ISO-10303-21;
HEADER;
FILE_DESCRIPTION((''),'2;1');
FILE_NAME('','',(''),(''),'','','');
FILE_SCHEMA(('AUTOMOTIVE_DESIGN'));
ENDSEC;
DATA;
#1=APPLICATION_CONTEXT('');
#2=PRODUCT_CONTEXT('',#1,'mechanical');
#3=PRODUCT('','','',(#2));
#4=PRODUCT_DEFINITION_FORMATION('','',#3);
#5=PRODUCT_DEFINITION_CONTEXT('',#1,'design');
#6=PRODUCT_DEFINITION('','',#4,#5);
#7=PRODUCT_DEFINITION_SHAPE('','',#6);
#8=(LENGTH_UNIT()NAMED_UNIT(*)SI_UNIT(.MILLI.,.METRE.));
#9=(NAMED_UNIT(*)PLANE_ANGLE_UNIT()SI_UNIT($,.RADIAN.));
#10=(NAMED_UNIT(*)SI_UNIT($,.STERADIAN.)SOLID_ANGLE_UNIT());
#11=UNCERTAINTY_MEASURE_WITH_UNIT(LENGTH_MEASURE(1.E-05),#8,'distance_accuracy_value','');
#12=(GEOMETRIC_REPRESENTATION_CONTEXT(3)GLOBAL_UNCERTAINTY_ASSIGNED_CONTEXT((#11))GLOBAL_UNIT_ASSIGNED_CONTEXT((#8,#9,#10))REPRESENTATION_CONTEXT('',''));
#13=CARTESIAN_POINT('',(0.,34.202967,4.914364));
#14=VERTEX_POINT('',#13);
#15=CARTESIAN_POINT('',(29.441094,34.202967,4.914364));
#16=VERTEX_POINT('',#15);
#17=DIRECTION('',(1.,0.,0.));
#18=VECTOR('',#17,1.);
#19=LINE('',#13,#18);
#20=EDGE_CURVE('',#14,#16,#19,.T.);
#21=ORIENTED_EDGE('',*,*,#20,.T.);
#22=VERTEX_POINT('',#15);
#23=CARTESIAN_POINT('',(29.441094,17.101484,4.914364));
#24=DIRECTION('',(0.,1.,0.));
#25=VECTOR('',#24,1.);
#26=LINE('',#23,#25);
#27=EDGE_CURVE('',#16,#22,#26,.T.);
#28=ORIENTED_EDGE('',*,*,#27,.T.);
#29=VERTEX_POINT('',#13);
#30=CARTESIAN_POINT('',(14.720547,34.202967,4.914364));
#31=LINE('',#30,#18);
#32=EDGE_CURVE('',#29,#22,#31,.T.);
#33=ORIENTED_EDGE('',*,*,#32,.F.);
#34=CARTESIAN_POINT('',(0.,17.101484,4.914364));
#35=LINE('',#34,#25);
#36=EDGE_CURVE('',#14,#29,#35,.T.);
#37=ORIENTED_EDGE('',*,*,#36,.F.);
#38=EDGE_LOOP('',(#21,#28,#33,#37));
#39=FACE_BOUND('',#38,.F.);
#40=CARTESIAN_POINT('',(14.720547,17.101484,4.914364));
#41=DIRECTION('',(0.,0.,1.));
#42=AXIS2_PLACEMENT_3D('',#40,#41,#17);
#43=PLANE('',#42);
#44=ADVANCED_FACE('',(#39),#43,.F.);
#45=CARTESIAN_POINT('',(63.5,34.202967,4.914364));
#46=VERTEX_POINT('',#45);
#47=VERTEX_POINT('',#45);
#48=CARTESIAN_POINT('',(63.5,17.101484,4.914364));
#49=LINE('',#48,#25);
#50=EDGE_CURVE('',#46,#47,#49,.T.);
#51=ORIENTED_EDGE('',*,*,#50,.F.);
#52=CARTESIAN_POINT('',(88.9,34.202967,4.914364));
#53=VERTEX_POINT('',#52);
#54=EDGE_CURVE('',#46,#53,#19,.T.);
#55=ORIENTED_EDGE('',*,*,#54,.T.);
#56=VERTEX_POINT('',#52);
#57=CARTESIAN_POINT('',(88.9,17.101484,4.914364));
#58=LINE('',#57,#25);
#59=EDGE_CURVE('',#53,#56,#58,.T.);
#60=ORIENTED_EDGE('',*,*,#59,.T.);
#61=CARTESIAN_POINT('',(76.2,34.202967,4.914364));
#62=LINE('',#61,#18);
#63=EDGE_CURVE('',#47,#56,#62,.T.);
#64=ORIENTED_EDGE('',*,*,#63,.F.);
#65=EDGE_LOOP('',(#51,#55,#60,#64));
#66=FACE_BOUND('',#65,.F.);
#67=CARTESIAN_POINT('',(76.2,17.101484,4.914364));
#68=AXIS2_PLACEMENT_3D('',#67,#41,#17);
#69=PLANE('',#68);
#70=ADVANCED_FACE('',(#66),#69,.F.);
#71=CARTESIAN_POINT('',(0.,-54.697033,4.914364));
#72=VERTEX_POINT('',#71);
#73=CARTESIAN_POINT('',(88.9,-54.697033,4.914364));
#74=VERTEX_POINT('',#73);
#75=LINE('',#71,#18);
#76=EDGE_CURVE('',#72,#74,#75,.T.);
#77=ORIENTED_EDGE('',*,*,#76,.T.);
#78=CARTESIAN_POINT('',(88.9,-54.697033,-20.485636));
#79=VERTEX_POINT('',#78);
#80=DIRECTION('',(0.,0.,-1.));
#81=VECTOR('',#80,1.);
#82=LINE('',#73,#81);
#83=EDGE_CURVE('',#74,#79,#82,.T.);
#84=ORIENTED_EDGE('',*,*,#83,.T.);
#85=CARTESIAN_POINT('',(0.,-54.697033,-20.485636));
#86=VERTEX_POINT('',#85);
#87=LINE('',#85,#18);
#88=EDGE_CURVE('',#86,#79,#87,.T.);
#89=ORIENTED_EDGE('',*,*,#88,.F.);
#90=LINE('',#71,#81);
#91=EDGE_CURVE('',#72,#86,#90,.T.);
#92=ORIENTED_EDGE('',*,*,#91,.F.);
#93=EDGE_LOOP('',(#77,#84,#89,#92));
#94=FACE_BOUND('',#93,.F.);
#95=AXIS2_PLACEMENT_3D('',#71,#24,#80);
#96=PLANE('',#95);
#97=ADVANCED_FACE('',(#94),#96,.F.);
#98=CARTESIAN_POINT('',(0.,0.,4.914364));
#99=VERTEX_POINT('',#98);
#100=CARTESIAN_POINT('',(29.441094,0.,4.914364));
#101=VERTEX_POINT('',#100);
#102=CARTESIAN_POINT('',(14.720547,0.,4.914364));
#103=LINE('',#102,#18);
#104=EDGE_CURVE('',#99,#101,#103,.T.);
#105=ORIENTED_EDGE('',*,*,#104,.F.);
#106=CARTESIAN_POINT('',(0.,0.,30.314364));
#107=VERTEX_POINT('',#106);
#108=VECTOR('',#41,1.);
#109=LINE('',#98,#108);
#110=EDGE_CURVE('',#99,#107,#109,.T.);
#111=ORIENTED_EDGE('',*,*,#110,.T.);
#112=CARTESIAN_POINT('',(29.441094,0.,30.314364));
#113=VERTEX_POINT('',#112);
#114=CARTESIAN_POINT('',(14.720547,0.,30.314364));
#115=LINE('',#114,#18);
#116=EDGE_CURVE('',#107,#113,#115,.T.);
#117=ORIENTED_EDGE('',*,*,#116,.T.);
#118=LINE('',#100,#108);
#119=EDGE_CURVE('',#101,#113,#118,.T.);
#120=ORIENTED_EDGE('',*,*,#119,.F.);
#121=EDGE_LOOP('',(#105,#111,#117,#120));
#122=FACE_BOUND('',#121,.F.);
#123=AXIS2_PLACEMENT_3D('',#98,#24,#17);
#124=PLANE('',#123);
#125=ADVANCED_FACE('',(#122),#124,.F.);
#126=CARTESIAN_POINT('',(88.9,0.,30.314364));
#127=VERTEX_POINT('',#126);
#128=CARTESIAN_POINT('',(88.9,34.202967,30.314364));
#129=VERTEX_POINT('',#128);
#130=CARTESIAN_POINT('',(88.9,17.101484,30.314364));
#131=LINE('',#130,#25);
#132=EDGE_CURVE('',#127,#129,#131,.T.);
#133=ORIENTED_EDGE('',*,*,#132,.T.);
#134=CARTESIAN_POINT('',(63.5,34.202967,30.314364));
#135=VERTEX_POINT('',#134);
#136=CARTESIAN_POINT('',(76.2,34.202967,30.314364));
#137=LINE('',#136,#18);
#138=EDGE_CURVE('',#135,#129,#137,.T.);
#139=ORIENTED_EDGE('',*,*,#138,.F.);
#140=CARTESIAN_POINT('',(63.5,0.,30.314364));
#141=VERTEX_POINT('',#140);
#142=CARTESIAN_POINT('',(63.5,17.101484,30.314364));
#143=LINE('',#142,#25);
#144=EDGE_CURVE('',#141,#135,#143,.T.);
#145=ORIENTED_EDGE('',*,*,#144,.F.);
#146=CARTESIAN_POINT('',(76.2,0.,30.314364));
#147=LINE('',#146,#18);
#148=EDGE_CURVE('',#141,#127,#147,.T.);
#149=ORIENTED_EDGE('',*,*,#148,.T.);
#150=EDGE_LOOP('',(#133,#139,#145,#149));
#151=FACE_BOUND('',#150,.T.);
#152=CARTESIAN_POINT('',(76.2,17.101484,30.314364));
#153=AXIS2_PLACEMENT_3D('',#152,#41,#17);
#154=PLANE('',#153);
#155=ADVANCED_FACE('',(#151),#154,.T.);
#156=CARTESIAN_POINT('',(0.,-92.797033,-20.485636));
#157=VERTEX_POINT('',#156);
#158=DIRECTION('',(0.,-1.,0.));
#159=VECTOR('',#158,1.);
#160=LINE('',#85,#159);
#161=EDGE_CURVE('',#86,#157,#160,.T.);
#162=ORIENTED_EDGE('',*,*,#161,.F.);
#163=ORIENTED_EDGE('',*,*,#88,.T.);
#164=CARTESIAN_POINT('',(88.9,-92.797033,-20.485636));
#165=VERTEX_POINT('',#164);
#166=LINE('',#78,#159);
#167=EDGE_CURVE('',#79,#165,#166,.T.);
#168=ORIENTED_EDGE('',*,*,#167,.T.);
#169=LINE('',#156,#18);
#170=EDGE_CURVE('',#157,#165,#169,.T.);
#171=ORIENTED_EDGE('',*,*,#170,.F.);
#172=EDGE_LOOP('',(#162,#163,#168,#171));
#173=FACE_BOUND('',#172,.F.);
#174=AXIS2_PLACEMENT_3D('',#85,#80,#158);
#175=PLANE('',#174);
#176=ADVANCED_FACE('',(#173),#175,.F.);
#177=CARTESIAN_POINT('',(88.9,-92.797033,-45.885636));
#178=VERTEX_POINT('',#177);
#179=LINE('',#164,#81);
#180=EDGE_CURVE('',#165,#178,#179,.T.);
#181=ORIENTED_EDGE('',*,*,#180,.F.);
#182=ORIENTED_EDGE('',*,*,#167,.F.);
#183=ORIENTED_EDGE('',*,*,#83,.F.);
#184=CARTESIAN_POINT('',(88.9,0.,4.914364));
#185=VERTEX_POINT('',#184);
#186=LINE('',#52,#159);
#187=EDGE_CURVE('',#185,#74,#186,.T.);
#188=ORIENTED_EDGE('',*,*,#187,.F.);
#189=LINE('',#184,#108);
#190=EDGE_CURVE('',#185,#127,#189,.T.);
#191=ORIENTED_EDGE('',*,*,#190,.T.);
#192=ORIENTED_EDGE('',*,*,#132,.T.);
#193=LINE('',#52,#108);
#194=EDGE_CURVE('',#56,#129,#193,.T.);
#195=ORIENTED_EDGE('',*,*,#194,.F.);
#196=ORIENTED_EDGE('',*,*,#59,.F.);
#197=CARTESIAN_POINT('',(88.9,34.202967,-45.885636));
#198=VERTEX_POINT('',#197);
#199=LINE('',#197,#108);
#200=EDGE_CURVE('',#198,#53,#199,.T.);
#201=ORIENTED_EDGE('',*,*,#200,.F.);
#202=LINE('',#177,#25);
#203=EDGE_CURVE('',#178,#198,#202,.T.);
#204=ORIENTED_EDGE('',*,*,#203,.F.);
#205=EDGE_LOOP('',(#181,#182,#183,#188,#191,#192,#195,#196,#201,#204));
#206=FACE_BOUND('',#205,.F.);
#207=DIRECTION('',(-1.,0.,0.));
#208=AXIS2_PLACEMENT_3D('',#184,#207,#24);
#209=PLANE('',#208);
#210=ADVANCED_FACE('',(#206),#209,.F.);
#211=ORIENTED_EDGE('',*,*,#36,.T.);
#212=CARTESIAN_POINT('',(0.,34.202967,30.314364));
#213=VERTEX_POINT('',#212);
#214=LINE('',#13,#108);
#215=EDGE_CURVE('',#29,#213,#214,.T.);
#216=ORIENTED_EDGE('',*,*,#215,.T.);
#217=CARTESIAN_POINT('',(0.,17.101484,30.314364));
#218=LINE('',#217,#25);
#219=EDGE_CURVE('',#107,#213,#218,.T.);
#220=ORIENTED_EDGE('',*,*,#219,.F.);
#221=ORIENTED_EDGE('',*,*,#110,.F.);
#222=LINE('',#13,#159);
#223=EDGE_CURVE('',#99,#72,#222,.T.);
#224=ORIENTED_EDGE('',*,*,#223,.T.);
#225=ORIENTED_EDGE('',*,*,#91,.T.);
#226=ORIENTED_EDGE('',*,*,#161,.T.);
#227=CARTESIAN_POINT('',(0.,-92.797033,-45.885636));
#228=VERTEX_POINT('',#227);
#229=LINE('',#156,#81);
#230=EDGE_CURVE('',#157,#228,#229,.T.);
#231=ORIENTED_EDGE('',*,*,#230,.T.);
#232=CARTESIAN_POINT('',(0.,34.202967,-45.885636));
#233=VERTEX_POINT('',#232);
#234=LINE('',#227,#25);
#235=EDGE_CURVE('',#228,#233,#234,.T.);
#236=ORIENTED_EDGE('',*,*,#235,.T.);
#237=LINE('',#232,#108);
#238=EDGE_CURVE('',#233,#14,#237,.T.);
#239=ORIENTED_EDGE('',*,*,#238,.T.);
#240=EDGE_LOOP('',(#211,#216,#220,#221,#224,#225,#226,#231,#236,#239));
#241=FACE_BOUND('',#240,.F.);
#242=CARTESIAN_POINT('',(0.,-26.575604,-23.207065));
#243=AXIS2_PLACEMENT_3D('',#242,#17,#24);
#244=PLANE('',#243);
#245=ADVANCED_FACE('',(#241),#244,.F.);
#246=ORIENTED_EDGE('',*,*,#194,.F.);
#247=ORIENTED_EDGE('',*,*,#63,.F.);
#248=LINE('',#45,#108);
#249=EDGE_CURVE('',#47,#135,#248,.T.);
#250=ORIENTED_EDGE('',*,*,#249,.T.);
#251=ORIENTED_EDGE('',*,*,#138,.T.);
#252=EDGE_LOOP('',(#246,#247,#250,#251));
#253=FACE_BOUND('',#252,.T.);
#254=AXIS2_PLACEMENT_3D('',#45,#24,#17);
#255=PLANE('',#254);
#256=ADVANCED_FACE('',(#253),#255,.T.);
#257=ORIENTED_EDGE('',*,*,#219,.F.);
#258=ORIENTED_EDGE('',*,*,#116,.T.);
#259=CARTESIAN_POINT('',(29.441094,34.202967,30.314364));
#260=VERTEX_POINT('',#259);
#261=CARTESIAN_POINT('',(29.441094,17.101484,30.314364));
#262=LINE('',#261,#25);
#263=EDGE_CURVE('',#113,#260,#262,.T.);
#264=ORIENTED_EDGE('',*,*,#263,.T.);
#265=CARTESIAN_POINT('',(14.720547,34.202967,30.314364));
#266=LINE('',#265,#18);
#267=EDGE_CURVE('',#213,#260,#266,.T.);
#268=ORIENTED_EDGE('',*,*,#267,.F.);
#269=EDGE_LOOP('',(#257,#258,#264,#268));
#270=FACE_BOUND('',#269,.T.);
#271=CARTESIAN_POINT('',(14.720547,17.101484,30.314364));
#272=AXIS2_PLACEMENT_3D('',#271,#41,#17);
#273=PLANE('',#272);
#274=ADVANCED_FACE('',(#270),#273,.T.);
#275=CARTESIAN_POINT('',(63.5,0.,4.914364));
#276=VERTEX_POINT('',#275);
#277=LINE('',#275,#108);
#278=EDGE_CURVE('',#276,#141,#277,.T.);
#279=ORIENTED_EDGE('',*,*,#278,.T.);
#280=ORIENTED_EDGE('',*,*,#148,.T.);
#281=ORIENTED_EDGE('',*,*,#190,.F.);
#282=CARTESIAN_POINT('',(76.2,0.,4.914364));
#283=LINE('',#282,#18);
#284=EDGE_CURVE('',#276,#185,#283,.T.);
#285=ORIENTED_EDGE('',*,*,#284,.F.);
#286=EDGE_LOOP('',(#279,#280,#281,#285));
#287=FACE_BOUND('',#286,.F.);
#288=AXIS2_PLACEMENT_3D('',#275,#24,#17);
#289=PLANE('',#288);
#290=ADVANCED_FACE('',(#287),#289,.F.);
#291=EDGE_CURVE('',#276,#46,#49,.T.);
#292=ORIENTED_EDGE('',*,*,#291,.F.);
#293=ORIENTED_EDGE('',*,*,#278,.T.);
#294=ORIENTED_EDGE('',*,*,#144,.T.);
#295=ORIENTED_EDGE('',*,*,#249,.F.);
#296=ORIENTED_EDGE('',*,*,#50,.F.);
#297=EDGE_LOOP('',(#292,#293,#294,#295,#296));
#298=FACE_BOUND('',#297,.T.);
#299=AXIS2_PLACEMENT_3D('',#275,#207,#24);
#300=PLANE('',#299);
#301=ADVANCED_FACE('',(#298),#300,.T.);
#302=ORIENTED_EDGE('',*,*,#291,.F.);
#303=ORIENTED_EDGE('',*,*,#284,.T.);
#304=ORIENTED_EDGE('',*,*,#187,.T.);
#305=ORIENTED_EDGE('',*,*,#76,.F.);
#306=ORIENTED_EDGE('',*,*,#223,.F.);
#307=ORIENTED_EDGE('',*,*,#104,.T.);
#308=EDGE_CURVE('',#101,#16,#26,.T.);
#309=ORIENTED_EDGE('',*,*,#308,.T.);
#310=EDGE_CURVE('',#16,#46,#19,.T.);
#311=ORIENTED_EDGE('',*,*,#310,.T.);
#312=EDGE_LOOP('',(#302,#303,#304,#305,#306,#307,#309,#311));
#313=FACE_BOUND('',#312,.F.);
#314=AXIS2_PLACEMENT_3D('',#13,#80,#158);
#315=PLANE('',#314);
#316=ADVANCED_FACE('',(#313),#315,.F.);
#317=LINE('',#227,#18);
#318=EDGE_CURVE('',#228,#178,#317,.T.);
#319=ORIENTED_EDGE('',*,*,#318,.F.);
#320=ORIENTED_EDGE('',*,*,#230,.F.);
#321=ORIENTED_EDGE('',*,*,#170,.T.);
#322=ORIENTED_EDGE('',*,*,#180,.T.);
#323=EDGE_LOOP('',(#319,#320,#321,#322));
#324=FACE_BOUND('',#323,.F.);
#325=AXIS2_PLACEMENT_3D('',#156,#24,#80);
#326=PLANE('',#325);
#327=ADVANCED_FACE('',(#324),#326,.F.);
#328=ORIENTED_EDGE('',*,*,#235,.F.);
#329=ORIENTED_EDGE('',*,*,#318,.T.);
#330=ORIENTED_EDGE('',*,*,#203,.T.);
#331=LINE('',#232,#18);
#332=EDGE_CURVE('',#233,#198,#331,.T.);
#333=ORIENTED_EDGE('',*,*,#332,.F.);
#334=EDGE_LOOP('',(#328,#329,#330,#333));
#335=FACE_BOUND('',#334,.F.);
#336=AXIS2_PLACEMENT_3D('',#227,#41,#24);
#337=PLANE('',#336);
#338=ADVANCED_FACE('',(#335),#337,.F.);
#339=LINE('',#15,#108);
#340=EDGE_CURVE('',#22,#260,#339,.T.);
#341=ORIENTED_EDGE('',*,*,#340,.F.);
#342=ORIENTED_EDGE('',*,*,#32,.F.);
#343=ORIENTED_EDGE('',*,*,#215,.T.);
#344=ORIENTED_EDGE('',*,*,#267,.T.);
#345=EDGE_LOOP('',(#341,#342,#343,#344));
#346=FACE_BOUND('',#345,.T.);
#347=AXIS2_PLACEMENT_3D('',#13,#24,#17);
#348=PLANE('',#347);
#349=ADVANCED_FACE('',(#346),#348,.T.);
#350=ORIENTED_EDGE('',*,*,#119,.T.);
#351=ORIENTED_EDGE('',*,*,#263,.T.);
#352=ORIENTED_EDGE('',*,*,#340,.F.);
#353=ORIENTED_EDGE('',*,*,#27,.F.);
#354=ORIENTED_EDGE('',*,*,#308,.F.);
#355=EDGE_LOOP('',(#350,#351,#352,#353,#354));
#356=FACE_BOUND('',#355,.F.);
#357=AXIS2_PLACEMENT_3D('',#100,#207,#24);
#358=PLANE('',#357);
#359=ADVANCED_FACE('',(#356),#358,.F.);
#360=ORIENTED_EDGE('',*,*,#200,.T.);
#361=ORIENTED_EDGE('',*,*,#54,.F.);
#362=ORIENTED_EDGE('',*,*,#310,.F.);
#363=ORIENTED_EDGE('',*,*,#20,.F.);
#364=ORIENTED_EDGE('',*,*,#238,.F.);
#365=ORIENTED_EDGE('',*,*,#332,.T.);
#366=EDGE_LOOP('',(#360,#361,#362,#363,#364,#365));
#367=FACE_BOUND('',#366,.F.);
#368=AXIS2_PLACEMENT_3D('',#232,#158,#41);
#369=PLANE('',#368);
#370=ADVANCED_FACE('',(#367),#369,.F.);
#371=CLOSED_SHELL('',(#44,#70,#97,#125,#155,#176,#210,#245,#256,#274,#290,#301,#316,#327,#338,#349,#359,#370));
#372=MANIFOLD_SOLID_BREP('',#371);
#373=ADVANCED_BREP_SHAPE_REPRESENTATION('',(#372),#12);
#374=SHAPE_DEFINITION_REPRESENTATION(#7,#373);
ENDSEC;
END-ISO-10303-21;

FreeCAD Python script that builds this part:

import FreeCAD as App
import Part
import Sketcher
from FreeCAD import Vector
Q = App.Units.Quantity


def add_polygon(sketch, points):
    """Adds a closed chain of lines whose ends are joined by coincident constraints."""
    first, n = sketch.GeometryCount, len(points)
    for a, b in zip(points, points[1:] + points[:1]):
        sketch.addGeometry(Part.LineSegment(App.Vector(*a, 0), App.Vector(*b, 0)), False)
    for i in range(n):
        sketch.addConstraint(Sketcher.Constraint("Coincident", first + i, 2, first + (i + 1) % n, 1))

doc = App.newDocument("Part")
params = doc.addObject("Spreadsheet::Sheet", "Params")
for row, (alias, value) in enumerate([
    ("sketch1_width", "5 in"),
    ("sketch1_height", "1 in"),
    ("sketch1_width2", "3.5 in"),
    ("pad1_length", "3.5 in"),
    ("sketch2_width", "1 in"),
    ("pad2_length", "1 in"),
], start=1):
    params.set(f"A{row}", alias)
    params.set(f"B{row}", "=" + value)
    params.setAlias(f"B{row}", alias)

body = doc.addObject("PartDesign::Body", "Body")

# Sketch on YZ plane
sketch1 = doc.addObject("Sketcher::SketchObject", "Sketch")
body.addObject(sketch1)
sketch1.AttachmentSupport = (doc.YZ_Plane, [""])
sketch1.MapMode = "FlatFace"
add_polygon(sketch1, [(34, 5), (-55, 5), (-55, -20), (-93, -20), (-93, -46), (34, -46)])  # lines 0-5
sketch1.addConstraint(Sketcher.Constraint("Horizontal", 0))
sketch1.addConstraint(Sketcher.Constraint("Vertical", 1))
sketch1.addConstraint(Sketcher.Constraint("Horizontal", 2))
sketch1.addConstraint(Sketcher.Constraint("Vertical", 3))
sketch1.addConstraint(Sketcher.Constraint("Horizontal", 4))
sketch1.addConstraint(Sketcher.Constraint("Vertical", 5))
sketch1.addConstraint(Sketcher.Constraint("Equal", 1, 3))
sketch1.addConstraint(Sketcher.Constraint("DistanceX", 4, 1, 4, 2, Q("5 in")))
sketch1.addConstraint(Sketcher.Constraint("DistanceY", 1, 2, 1, 1, Q("1 in")))
sketch1.addConstraint(Sketcher.Constraint("DistanceX", 0, 2, 0, 1, Q("3.5 in")))
sketch1.addConstraint(Sketcher.Constraint("DistanceX", 0, 2, -1, 1, 54.697033))
sketch1.addConstraint(Sketcher.Constraint("DistanceY", -1, 1, 0, 2, 4.914364))
sketch1.setExpression("Constraints[13]", "Params.sketch1_width")
sketch1.setExpression("Constraints[14]", "Params.sketch1_height")
sketch1.setExpression("Constraints[15]", "Params.sketch1_width2")
pad1 = doc.addObject("PartDesign::Pad", "Pad")
body.addObject(pad1)
pad1.Profile = sketch1
pad1.setExpression("Length", "Params.pad1_length")

# Sketch on XY plane
sketch2 = doc.addObject("Sketcher::SketchObject", "Sketch001")
body.addObject(sketch2)
sketch2.AttachmentSupport = (doc.XY_Plane, [""])
sketch2.MapMode = "FlatFace"
sketch2.AttachmentOffset = App.Placement(Vector(0, 0, 4.914364), App.Rotation())
add_polygon(sketch2, [(64, 34), (64, 0), (89, 0), (89, 34)])  # lines 0-3
add_polygon(sketch2, [(0, 34), (0, 0), (29, 0), (29, 34)])  # lines 4-7
sketch2.addConstraint(Sketcher.Constraint("Vertical", 0))
sketch2.addConstraint(Sketcher.Constraint("Horizontal", 1))
sketch2.addConstraint(Sketcher.Constraint("Vertical", 2))
sketch2.addConstraint(Sketcher.Constraint("Horizontal", 3))
sketch2.addConstraint(Sketcher.Constraint("Vertical", 4))
sketch2.addConstraint(Sketcher.Constraint("Horizontal", 5))
sketch2.addConstraint(Sketcher.Constraint("Vertical", 6))
sketch2.addConstraint(Sketcher.Constraint("Horizontal", 7))
sketch2.addConstraint(Sketcher.Constraint("Coincident", 4, 2, -1, 1))
sketch2.addConstraint(Sketcher.Constraint("PointOnObject", 0, 2, -1))
sketch2.addConstraint(Sketcher.Constraint("Horizontal", 3, 2, 6, 2))
sketch2.addConstraint(Sketcher.Constraint("DistanceX", 1, 1, 1, 2, Q("1 in")))
sketch2.addConstraint(Sketcher.Constraint("DistanceX", -1, 1, 0, 2, Q("2.5 in")))
sketch2.addConstraint(Sketcher.Constraint("DistanceX", 5, 1, 5, 2, 29.441094))
sketch2.addConstraint(Sketcher.Constraint("DistanceY", 0, 2, 0, 1, 34.202967))
sketch2.setExpression("Constraints[19]", "Params.sketch2_width")
pad2 = doc.addObject("PartDesign::Pad", "Pad001")
body.addObject(pad2)
pad2.Profile = sketch2
pad2.setExpression("Length", "Params.pad2_length")

doc.recompute()
